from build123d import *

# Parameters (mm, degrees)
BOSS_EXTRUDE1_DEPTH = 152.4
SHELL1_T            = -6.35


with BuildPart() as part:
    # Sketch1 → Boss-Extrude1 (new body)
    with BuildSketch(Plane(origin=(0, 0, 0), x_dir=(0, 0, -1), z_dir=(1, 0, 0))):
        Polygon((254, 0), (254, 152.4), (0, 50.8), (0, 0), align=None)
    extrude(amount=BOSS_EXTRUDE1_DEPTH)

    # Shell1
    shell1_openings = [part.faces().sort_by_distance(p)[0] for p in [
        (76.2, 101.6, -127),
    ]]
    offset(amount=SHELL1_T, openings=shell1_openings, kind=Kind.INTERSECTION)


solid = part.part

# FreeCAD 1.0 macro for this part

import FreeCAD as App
import Part
import Sketcher
from FreeCAD import Vector
Q = App.Units.Quantity


def faces_at(feature, points):
    """Names of the faces that lie closest to the given points."""
    faces = feature.Shape.Faces
    near = lambda p: min(range(len(faces)), key=lambda i: faces[i].distToShape(Part.Vertex(*p))[0])
    return sorted({f"Face{near(p) + 1}" for p in points})


def add_polygon(sketch, points):
    """Adds a closed chain of lines whose ends are joined by coincident constraints."""
    first, n = sketch.GeometryCount, len(points)
    for a, b in zip(points, points[1:] + points[:1]):
        sketch.addGeometry(Part.LineSegment(App.Vector(*a, 0), App.Vector(*b, 0)), False)
    for i in range(n):
        sketch.addConstraint(Sketcher.Constraint("Coincident", first + i, 2, first + (i + 1) % n, 1))

doc = App.newDocument("Part")
body = doc.addObject("PartDesign::Body", "Body")

sketch1 = body.newObject("Sketcher::SketchObject", "Sketch")
sketch1.AttachmentSupport = (doc.getObject("YZ_Plane"), [""])
sketch1.MapMode = "FlatFace"
add_polygon(sketch1, [(0, -254), (152, -254), (51, 0), (0, 0)])
sketch1.addConstraint(Sketcher.Constraint("Horizontal", 0))
sketch1.addConstraint(Sketcher.Constraint("Horizontal", 2))
sketch1.addConstraint(Sketcher.Constraint("Vertical", 3))
sketch1.addConstraint(Sketcher.Constraint("Coincident", 2, 2, -1, 1))
sketch1.addConstraint(Sketcher.Constraint("DistanceX", 0, 1, 0, 2, Q("6 in")))
sketch1.addConstraint(Sketcher.Constraint("DistanceX", 2, 2, 2, 1, Q("2 in")))
sketch1.addConstraint(Sketcher.Constraint("DistanceY", 3, 2, 3, 1, Q("10 in")))
pad1 = body.newObject("PartDesign::Pad", "Pad")
pad1.Profile = sketch1
pad1.Length = Q("6 in")
doc.recompute()

thickness = body.newObject("PartDesign::Thickness", "Thickness")
thickness.Base = (pad1, faces_at(pad1, [(76.2, 101.6, -127)]))
thickness.Value = Q("0.25 in")
thickness.Reversed = True
thickness.Join = "Intersection"

doc.recompute()
